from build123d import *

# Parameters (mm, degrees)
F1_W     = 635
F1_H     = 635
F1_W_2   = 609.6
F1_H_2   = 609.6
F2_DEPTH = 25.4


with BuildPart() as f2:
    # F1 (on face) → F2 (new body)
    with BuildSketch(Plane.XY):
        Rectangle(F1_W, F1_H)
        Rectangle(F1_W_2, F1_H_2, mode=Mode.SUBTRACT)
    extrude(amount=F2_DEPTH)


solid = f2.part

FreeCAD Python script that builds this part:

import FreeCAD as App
import Part
import Sketcher

V = App.Vector
Q = App.Units.Quantity

doc = App.newDocument("Part")
body = doc.addObject("PartDesign::Body", "Body")

# Sketch on XY plane
sketch1 = body.newObject("Sketcher::SketchObject", "Sketch")
sketch1.AttachmentSupport = (doc.getObject("XY_Plane"), [""])
sketch1.MapMode = "FlatFace"
sketch1.addGeometry([
    Part.LineSegment(V(-318, 318, 0), V(-318, -318, 0)),  # 0
    Part.LineSegment(V(-318, -318, 0), V(318, -318, 0)),  # 1
    Part.LineSegment(V(318, -318, 0), V(318, 318, 0)),  # 2
    Part.LineSegment(V(318, 318, 0), V(-318, 318, 0)),  # 3
    Part.LineSegment(V(305, -305, 0), V(-305, -305, 0)),  # 4
    Part.LineSegment(V(-305, -305, 0), V(-305, 305, 0)),  # 5
    Part.LineSegment(V(-305, 305, 0), V(305, 305, 0)),  # 6
    Part.LineSegment(V(305, 305, 0), V(305, -305, 0)),  # 7
], False)
sketch1.addConstraint([
    Sketcher.Constraint("Coincident", 0, 2, 1, 1),
    Sketcher.Constraint("Coincident", 1, 2, 2, 1),
    Sketcher.Constraint("Coincident", 2, 2, 3, 1),
    Sketcher.Constraint("Coincident", 3, 2, 0, 1),
    Sketcher.Constraint("Coincident", 4, 2, 5, 1),
    Sketcher.Constraint("Coincident", 5, 2, 6, 1),
    Sketcher.Constraint("Coincident", 6, 2, 7, 1),
    Sketcher.Constraint("Coincident", 7, 2, 4, 1),
    Sketcher.Constraint("Vertical", 0),
    Sketcher.Constraint("Horizontal", 1),
    Sketcher.Constraint("Vertical", 2),
    Sketcher.Constraint("Horizontal", 3),
    Sketcher.Constraint("Horizontal", 4),
    Sketcher.Constraint("Vertical", 5),
    Sketcher.Constraint("Horizontal", 6),
    Sketcher.Constraint("Vertical", 7),
    Sketcher.Constraint("Symmetric", 0, 2, 2, 2, -1, 1),
    Sketcher.Constraint("Symmetric", 4, 2, 6, 2, -1, 1),
    Sketcher.Constraint("Equal", 3, 0),
    Sketcher.Constraint("Equal", 6, 5),
    Sketcher.Constraint("DistanceX", 1, 1, 1, 2, Q("25 in")),
    Sketcher.Constraint("DistanceX", 4, 2, 4, 1, Q("24 in")),
])
pad1 = body.newObject("PartDesign::Pad", "Pad")
pad1.Profile = sketch1
pad1.Length = Q("1 in")

doc.recompute()
